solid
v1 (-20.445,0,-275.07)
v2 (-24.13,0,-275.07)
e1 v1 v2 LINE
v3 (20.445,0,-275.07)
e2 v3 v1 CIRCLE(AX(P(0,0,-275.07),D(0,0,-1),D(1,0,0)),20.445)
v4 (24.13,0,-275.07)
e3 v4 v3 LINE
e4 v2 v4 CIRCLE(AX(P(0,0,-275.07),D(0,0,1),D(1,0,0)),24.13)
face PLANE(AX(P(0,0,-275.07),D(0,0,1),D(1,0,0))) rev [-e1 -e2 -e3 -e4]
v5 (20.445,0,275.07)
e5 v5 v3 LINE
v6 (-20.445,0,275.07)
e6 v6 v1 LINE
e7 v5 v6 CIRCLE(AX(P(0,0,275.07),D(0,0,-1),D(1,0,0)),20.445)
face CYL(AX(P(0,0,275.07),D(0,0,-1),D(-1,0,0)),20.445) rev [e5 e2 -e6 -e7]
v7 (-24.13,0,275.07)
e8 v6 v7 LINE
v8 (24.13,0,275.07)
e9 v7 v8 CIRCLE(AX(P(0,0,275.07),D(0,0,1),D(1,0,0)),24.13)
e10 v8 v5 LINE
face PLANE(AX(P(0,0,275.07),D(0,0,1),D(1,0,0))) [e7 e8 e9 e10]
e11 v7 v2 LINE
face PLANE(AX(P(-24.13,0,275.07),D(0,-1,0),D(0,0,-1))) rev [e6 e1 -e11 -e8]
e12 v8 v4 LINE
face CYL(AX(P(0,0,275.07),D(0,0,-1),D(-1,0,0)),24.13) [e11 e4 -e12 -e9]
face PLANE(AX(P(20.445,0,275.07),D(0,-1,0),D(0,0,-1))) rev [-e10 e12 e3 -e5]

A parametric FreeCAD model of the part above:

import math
import FreeCAD as App
import Part
import Sketcher

V = App.Vector
Q = App.Units.Quantity

doc = App.newDocument("Part")
body = doc.addObject("PartDesign::Body", "Body")

# Sketch on XY plane
sketch1 = body.newObject("Sketcher::SketchObject", "Sketch")
sketch1.AttachmentSupport = (doc.getObject("XY_Plane"), [""])
sketch1.MapMode = "FlatFace"
sketch1.addGeometry([
    Part.LineSegment(V(-20.4, 0, 0), V(-24.1, 0, 0)),
    Part.ArcOfCircle(Part.Circle(V(0, 0, 0), V(0, 0, 1), 24.1), math.radians(180), math.radians(360)),
    Part.LineSegment(V(24.1, 0, 0), V(20.4, 0, 0)),
    Part.ArcOfCircle(Part.Circle(V(0, 0, 0), V(0, 0, 1), 20.4), math.radians(180), math.radians(360)),
], False)
sketch1.addConstraint([
    Sketcher.Constraint("Coincident", 0, 2, 1, 1),
    Sketcher.Constraint("Coincident", 1, 2, 2, 1),
    Sketcher.Constraint("Coincident", 2, 2, 3, 2),
    Sketcher.Constraint("Coincident", 3, 1, 0, 1),
    Sketcher.Constraint("Horizontal", 0),
    Sketcher.Constraint("Horizontal", 2),
    Sketcher.Constraint("Coincident", 1, 3, -1, 1),
    Sketcher.Constraint("Coincident", 3, 3, -1, 1),
    Sketcher.Constraint("PointOnObject", 0, 2, -1),
    Sketcher.Constraint("PointOnObject", 1, 2, -1),
    Sketcher.Constraint("Radius", 1, Q("0.95 in")),
    Sketcher.Constraint("Radius", 3, 20.445),
])
pad1 = body.newObject("PartDesign::Pad", "Pad")
pad1.Profile = sketch1
pad1.Length = 550.14
pad1.Midplane = True

doc.recompute()
